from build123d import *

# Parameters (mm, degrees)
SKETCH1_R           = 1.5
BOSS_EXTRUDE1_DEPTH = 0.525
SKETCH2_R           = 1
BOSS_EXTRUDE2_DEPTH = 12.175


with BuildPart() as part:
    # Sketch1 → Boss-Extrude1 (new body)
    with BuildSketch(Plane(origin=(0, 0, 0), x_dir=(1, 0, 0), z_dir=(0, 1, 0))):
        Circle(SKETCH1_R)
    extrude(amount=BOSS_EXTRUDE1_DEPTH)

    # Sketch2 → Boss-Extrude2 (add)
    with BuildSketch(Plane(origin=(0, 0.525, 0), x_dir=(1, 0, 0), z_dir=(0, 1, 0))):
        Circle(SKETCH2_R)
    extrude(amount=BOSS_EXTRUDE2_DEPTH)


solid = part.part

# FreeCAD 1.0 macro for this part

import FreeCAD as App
import Part
import Sketcher
Q = App.Units.Quantity

doc = App.newDocument("Part")
params = doc.addObject("Spreadsheet::Sheet", "Params")
for row, (alias, value) in enumerate([
    ("sketch1_diameter", "3 mm"),
    ("pad1_length", "0.525 mm"),
    ("sketch2_diameter", "2 mm"),
    ("pad2_length", "12.175 mm"),
], start=1):
    params.set(f"A{row}", alias)
    params.set(f"B{row}", "=" + value)
    params.setAlias(f"B{row}", alias)

body = doc.addObject("PartDesign::Body", "Body")

# Sketch on XZ plane
sketch1 = body.newObject("Sketcher::SketchObject", "Sketch")
sketch1.AttachmentSupport = (doc.getObject("XZ_Plane"), [""])
sketch1.MapMode = "FlatFace"
sketch1.addGeometry(Part.Circle(App.Vector(0, 0, 0), App.Vector(0, 0, 1), 1.5), False)
sketch1.addConstraint(Sketcher.Constraint("Coincident", 0, 3, -1, 1))
sketch1.addConstraint(Sketcher.Constraint("Diameter", 0, Q("3 mm")))
sketch1.setExpression("Constraints[1]", "Params.sketch1_diameter")
pad1 = body.newObject("PartDesign::Pad", "Pad")
pad1.Profile = sketch1
pad1.setExpression("Length", "Params.pad1_length")
pad1.Reversed = True

# Sketch on XZ plane
sketch2 = body.newObject("Sketcher::SketchObject", "Sketch001")
sketch2.AttachmentSupport = (doc.getObject("XZ_Plane"), [""])
sketch2.MapMode = "FlatFace"
sketch2.AttachmentOffset = App.Placement(App.Vector(0, 0, -0.525), App.Rotation())
sketch2.addGeometry(Part.Circle(App.Vector(0, 0, 0), App.Vector(0, 0, 1), 1), False)
sketch2.addConstraint(Sketcher.Constraint("Coincident", 0, 3, -1, 1))
sketch2.addConstraint(Sketcher.Constraint("Diameter", 0, Q("2 mm")))
sketch2.setExpression("Constraints[1]", "Params.sketch2_diameter")
pad2 = body.newObject("PartDesign::Pad", "Pad001")
pad2.Profile = sketch2
pad2.setExpression("Length", "Params.pad2_length")
pad2.Reversed = True

doc.recompute()
